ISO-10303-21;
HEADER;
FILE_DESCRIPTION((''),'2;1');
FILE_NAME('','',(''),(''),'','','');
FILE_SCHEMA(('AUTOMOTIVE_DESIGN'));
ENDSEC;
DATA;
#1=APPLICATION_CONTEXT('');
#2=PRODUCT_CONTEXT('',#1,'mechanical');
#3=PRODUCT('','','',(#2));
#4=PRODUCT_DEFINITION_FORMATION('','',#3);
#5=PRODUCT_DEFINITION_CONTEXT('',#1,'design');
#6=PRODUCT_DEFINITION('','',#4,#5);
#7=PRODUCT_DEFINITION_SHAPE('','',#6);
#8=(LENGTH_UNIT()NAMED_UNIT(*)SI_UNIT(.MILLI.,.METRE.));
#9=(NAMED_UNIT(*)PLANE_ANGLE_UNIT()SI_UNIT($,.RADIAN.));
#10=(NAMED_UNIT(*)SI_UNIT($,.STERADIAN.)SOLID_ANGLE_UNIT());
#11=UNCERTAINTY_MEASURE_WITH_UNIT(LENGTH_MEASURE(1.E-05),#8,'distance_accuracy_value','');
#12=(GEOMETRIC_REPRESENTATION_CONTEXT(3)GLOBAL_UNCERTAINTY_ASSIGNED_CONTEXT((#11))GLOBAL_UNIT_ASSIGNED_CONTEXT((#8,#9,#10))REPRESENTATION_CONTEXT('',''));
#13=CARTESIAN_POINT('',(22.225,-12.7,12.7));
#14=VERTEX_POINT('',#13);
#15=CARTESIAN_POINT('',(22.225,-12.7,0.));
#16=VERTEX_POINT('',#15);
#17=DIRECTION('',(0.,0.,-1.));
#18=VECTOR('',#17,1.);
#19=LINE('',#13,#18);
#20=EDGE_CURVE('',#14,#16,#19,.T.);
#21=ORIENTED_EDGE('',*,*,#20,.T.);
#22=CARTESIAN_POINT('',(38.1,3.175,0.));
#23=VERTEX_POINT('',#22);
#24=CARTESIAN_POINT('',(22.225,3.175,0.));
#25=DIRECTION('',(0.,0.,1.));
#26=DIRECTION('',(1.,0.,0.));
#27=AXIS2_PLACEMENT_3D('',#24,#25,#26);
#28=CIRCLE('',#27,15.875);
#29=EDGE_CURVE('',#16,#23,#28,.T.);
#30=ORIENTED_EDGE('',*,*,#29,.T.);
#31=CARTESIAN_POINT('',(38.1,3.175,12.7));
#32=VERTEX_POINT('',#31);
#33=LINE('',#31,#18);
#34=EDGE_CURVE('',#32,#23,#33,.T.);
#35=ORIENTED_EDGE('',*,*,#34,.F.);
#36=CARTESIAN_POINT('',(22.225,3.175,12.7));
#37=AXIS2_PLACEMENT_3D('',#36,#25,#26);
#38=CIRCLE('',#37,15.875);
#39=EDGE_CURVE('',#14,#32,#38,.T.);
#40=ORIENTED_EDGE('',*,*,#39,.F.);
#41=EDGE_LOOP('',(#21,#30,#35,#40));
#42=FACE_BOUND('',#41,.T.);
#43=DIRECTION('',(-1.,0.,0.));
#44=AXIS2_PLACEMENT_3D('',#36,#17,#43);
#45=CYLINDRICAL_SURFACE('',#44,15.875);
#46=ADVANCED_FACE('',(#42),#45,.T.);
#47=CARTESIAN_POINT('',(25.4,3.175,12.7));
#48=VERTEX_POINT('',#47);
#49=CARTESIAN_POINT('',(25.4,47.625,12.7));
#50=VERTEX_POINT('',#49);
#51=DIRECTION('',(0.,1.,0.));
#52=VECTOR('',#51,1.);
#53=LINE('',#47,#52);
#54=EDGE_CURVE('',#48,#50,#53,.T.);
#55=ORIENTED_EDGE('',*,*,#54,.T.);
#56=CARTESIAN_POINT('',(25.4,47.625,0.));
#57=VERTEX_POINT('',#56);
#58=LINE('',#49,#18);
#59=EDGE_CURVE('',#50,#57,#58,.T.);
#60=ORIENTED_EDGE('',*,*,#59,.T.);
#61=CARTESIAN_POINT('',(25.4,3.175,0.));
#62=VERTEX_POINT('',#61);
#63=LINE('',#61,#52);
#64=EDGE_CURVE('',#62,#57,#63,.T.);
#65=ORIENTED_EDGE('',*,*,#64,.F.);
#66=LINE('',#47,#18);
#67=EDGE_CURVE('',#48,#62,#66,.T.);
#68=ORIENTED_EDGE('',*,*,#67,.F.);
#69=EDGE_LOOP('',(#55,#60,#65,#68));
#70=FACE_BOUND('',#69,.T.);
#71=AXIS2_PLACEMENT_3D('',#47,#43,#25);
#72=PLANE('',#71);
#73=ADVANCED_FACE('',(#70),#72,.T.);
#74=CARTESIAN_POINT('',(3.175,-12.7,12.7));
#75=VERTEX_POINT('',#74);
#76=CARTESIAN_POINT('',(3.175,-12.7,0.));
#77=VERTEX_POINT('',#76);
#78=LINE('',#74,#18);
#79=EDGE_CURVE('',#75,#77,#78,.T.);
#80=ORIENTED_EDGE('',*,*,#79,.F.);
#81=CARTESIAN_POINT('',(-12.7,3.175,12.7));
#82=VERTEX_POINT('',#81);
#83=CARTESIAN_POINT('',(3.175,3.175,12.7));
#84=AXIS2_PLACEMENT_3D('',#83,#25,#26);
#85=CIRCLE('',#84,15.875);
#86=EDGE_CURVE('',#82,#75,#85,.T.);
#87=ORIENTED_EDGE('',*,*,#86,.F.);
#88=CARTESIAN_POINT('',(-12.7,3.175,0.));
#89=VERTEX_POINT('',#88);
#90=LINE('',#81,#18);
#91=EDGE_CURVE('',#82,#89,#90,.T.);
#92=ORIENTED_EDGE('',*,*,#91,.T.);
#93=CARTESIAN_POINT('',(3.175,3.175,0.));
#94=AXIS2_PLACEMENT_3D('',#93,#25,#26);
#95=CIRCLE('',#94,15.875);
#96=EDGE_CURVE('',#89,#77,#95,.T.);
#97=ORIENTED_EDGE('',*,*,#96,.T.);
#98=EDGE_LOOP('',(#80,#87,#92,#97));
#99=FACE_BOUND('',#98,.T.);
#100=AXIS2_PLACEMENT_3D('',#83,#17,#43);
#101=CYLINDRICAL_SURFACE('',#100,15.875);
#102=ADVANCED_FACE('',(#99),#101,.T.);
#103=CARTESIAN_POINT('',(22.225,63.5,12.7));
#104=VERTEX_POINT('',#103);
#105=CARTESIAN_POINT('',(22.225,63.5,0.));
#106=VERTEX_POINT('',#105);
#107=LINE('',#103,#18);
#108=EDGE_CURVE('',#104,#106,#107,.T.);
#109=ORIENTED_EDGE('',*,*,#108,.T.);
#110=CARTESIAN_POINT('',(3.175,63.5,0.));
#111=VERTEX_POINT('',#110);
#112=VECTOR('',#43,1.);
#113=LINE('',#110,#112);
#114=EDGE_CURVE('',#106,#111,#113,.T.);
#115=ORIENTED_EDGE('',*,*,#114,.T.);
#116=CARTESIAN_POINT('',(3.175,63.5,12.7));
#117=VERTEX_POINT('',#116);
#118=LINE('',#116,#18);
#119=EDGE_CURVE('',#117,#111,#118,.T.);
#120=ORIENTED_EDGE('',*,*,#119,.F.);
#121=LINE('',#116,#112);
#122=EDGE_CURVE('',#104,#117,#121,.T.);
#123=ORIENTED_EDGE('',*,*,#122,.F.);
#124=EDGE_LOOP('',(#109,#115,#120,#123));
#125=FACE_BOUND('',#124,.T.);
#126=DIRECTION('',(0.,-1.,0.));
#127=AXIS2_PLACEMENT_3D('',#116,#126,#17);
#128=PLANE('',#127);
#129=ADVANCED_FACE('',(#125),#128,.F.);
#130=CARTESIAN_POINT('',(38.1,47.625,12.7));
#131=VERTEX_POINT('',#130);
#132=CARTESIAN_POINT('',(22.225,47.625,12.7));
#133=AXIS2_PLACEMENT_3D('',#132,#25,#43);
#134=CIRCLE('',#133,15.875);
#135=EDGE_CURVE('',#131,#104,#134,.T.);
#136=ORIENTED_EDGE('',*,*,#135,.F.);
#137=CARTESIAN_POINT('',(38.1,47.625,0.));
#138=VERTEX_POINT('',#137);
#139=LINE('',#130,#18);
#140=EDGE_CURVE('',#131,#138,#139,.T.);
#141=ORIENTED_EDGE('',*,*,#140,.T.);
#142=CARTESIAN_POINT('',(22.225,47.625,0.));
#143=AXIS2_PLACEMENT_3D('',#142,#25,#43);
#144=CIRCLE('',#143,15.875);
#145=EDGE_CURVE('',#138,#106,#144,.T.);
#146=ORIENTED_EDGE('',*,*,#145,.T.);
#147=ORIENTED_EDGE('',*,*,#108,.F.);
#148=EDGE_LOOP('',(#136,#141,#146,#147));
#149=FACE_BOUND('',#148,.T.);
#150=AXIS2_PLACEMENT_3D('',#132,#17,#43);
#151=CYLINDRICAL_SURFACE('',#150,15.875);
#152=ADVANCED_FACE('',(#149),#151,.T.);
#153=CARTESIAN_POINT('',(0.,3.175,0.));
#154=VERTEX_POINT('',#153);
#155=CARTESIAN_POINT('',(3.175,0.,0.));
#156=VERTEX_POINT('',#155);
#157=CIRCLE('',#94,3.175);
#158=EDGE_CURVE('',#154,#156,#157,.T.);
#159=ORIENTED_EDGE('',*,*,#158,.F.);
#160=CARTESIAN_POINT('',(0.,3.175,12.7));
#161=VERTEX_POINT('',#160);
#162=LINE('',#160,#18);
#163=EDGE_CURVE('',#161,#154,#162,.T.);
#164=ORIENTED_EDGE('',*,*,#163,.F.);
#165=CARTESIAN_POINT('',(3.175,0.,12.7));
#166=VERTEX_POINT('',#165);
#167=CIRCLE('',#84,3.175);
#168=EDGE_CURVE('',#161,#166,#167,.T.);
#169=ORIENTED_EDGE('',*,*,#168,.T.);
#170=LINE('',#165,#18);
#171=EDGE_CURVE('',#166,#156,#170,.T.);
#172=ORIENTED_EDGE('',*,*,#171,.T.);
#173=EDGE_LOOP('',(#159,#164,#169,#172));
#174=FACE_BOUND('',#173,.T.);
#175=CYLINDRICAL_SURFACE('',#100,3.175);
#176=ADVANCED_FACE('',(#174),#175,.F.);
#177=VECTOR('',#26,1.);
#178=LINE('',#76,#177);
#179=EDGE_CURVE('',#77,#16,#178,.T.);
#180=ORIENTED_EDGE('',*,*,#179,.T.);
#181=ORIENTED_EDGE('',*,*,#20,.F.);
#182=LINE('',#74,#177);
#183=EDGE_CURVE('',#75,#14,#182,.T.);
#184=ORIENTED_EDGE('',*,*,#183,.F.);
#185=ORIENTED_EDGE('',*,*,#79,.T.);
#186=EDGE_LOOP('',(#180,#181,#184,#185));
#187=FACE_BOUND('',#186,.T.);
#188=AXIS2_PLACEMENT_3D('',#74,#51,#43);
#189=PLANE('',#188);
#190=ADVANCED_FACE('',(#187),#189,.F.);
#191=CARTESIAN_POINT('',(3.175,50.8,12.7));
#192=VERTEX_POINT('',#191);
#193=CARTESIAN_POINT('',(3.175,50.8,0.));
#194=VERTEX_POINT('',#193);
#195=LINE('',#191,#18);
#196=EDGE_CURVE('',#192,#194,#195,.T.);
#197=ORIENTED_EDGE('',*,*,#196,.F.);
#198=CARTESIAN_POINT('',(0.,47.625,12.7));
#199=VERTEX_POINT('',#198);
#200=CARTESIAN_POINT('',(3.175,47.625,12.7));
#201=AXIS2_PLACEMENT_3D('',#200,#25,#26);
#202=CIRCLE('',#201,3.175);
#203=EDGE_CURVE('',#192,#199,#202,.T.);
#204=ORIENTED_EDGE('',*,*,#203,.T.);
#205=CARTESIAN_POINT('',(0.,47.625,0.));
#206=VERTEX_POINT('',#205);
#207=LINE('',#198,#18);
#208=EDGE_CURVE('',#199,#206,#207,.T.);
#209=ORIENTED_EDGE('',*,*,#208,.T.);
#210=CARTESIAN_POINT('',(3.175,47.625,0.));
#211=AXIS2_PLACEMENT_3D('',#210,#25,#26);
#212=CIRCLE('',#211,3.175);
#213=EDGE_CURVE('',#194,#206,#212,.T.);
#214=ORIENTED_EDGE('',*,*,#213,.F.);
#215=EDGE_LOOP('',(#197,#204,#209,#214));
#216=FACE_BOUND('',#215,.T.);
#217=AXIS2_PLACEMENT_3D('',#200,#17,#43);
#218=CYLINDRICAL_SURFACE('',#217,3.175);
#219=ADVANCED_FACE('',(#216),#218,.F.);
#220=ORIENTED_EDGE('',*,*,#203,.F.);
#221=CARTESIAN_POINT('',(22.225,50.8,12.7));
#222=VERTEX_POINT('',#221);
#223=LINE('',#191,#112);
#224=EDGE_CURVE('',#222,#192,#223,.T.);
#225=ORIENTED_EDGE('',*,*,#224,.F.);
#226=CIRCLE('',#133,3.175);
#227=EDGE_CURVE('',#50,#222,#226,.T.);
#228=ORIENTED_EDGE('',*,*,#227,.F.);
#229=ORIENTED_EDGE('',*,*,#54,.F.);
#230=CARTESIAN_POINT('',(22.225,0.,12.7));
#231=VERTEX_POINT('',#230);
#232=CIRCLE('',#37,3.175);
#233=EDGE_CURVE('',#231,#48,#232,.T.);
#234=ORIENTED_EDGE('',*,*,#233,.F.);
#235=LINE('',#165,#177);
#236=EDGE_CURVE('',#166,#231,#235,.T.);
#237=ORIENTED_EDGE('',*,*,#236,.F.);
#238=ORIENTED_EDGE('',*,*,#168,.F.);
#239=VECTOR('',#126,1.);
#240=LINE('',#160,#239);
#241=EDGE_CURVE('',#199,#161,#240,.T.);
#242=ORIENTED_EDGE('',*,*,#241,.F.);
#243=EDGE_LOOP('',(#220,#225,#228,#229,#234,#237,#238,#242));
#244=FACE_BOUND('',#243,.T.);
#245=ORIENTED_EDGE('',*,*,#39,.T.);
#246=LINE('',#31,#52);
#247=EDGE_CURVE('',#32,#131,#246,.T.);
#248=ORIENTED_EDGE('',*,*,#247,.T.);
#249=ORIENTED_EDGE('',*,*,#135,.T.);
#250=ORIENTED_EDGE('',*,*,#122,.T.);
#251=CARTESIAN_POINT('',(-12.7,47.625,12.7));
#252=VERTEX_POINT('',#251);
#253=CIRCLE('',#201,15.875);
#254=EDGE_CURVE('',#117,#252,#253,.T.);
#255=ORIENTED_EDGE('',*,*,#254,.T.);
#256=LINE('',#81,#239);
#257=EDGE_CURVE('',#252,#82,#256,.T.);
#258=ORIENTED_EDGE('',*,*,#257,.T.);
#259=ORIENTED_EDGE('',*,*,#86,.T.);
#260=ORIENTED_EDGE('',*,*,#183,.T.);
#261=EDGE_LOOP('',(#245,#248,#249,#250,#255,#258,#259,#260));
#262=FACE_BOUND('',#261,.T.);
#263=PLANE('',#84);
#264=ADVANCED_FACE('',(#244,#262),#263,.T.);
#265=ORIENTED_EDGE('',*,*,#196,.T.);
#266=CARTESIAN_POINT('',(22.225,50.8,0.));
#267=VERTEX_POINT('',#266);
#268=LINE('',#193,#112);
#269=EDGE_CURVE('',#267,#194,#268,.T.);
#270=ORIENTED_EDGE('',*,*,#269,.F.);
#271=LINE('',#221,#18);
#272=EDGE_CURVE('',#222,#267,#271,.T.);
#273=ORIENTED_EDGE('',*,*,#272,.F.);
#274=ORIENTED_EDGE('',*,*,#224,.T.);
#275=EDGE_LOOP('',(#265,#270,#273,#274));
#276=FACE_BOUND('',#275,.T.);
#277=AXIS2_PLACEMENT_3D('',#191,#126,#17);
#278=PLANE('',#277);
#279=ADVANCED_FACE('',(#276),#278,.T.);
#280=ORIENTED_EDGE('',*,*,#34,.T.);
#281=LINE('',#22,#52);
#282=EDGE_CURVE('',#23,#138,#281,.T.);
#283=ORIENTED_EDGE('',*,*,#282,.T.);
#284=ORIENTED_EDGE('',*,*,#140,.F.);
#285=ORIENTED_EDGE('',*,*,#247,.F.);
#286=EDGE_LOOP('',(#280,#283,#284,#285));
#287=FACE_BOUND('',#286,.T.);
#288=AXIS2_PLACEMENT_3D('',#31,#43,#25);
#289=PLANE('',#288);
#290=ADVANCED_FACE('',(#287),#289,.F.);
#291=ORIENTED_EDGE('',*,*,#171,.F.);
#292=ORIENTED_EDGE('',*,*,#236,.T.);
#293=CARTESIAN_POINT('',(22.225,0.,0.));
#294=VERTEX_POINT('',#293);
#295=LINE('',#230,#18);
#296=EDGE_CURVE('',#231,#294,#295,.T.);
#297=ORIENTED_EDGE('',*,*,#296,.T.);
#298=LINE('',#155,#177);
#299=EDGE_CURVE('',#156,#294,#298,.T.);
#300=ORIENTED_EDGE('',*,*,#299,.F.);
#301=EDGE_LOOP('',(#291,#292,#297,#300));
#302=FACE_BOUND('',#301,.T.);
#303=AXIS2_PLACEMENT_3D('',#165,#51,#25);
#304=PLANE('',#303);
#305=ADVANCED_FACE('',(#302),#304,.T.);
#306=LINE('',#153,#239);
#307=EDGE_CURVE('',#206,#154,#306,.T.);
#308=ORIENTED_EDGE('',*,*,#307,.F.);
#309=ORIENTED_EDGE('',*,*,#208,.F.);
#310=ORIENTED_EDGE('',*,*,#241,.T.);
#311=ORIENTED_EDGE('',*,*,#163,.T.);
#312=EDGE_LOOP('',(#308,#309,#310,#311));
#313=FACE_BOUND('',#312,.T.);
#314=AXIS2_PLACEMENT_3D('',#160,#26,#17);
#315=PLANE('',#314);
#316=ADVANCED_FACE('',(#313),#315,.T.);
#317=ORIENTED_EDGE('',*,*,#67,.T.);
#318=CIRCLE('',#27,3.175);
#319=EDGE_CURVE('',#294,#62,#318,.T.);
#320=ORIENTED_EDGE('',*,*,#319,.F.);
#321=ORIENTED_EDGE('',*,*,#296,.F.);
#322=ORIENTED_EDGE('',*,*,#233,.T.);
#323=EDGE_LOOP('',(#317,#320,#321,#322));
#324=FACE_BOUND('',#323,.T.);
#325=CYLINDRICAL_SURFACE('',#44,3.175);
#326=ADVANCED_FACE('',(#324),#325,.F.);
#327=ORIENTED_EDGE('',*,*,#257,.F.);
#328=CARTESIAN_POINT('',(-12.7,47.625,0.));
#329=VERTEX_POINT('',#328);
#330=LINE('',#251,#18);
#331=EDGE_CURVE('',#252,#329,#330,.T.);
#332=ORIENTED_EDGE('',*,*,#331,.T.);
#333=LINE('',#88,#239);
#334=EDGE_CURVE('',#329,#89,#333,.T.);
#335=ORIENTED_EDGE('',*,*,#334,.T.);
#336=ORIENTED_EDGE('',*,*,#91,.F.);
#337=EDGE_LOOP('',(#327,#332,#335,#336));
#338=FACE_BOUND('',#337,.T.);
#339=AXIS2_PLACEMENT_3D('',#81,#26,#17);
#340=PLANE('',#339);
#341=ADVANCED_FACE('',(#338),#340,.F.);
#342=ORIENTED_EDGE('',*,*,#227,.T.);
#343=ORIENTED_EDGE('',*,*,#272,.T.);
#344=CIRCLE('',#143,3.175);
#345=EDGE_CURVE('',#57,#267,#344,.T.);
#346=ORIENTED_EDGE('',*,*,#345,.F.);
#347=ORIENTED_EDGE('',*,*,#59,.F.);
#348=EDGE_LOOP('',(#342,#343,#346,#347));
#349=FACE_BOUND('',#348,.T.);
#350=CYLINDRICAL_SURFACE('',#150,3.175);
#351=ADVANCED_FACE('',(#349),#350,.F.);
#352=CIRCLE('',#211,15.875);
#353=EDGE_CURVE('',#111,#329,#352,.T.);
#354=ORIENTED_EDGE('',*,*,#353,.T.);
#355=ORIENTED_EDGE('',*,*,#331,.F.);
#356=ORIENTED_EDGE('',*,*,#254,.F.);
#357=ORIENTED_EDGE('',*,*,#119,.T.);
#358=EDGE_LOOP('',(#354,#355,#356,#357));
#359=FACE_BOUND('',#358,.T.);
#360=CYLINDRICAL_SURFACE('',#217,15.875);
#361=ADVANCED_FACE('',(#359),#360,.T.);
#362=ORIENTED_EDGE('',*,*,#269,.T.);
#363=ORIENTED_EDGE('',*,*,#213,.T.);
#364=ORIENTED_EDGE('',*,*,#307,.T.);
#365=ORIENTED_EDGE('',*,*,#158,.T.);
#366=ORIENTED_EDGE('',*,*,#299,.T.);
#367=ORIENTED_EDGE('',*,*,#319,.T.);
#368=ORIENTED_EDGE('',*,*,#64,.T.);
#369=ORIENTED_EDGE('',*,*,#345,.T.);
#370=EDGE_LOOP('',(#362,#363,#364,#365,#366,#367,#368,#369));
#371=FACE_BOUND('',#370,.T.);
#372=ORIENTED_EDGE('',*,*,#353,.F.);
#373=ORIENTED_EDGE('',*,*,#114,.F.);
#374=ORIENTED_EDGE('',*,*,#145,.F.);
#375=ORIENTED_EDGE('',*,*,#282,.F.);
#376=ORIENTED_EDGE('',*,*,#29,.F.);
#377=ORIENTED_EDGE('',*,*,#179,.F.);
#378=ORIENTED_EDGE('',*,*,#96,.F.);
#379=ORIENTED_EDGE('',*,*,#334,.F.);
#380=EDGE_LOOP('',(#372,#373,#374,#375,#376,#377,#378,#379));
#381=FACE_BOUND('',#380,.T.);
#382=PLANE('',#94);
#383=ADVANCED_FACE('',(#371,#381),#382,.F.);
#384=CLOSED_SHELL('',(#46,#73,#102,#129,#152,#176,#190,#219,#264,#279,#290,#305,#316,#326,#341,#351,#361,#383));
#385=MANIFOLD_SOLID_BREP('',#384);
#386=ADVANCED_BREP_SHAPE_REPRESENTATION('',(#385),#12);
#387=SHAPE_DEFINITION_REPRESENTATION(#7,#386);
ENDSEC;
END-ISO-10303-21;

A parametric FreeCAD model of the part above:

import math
import FreeCAD as App
import Part
import Sketcher

V = App.Vector
Q = App.Units.Quantity

doc = App.newDocument("Part")
body = doc.addObject("PartDesign::Body", "Body")

# Sketch on XY plane
sketch1 = body.newObject("Sketcher::SketchObject", "Sketch")
sketch1.AttachmentSupport = (doc.getObject("XY_Plane"), [""])
sketch1.MapMode = "FlatFace"
sketch1.addGeometry(Part.LineSegment(V(-12.7, 47.6, 0), V(-12.7, 3.2, 0)), False)
sketch1.addGeometry(Part.ArcOfCircle(Part.Circle(V(3.2, 3.2, 0), V(0, 0, 1), 15.9), math.radians(-180), math.radians(-90)), False)
sketch1.addGeometry(Part.LineSegment(V(3.2, -12.7, 0), V(22.2, -12.7, 0)), False)
sketch1.addGeometry(Part.ArcOfCircle(Part.Circle(V(22.2, 3.2, 0), V(0, 0, 1), 15.9), math.radians(-90), math.radians(0)), False)
sketch1.addGeometry(Part.LineSegment(V(38.1, 3.2, 0), V(38.1, 47.6, 0)), False)
sketch1.addGeometry(Part.ArcOfCircle(Part.Circle(V(22.2, 47.6, 0), V(0, 0, 1), 15.9), math.radians(0), math.radians(90)), False)
sketch1.addGeometry(Part.LineSegment(V(22.2, 63.5, 0), V(3.2, 63.5, 0)), False)
sketch1.addGeometry(Part.ArcOfCircle(Part.Circle(V(3.2, 47.6, 0), V(0, 0, 1), 15.9), math.radians(90), math.radians(180)), False)
sketch1.addGeometry(Part.ArcOfCircle(Part.Circle(V(3.2, 3.2, 0), V(0, 0, 1), 3.2), math.radians(-180), math.radians(-90)), False)
sketch1.addGeometry(Part.LineSegment(V(0, 3.2, 0), V(0, 47.6, 0)), False)
sketch1.addGeometry(Part.ArcOfCircle(Part.Circle(V(3.2, 47.6, 0), V(0, 0, 1), 3.2), math.radians(90), math.radians(180)), False)
sketch1.addGeometry(Part.LineSegment(V(3.2, 50.8, 0), V(22.2, 50.8, 0)), False)
sketch1.addGeometry(Part.ArcOfCircle(Part.Circle(V(22.2, 47.6, 0), V(0, 0, 1), 3.2), math.radians(0), math.radians(90)), False)
sketch1.addGeometry(Part.LineSegment(V(25.4, 47.6, 0), V(25.4, 3.2, 0)), False)
sketch1.addGeometry(Part.ArcOfCircle(Part.Circle(V(22.2, 3.2, 0), V(0, 0, 1), 3.2), math.radians(-90), math.radians(0)), False)
sketch1.addGeometry(Part.LineSegment(V(22.2, 0, 0), V(3.2, 0, 0)), False)
sketch1.addConstraint(Sketcher.Constraint("Tangent", 0, 2, 1, 1))
sketch1.addConstraint(Sketcher.Constraint("Tangent", 1, 2, 2, 1))
sketch1.addConstraint(Sketcher.Constraint("Tangent", 2, 2, 3, 1))
sketch1.addConstraint(Sketcher.Constraint("Tangent", 3, 2, 4, 1))
sketch1.addConstraint(Sketcher.Constraint("Tangent", 4, 2, 5, 1))
sketch1.addConstraint(Sketcher.Constraint("Tangent", 5, 2, 6, 1))
sketch1.addConstraint(Sketcher.Constraint("Tangent", 6, 2, 7, 1))
sketch1.addConstraint(Sketcher.Constraint("Tangent", 7, 2, 0, 1))
sketch1.addConstraint(Sketcher.Constraint("Tangent", 8, 1, 9, 1))
sketch1.addConstraint(Sketcher.Constraint("Tangent", 9, 2, 10, 2))
sketch1.addConstraint(Sketcher.Constraint("Tangent", 10, 1, 11, 1))
sketch1.addConstraint(Sketcher.Constraint("Tangent", 11, 2, 12, 2))
sketch1.addConstraint(Sketcher.Constraint("Tangent", 12, 1, 13, 1))
sketch1.addConstraint(Sketcher.Constraint("Tangent", 13, 2, 14, 2))
sketch1.addConstraint(Sketcher.Constraint("Tangent", 14, 1, 15, 1))
sketch1.addConstraint(Sketcher.Constraint("Tangent", 15, 2, 8, 2))
sketch1.addConstraint(Sketcher.Constraint("Vertical", 0))
sketch1.addConstraint(Sketcher.Constraint("Horizontal", 2))
sketch1.addConstraint(Sketcher.Constraint("Vertical", 4))
sketch1.addConstraint(Sketcher.Constraint("Horizontal", 6))
sketch1.addConstraint(Sketcher.Constraint("Vertical", 9))
sketch1.addConstraint(Sketcher.Constraint("Horizontal", 11))
sketch1.addConstraint(Sketcher.Constraint("Vertical", 13))
sketch1.addConstraint(Sketcher.Constraint("Horizontal", 15))
sketch1.addConstraint(Sketcher.Constraint("Coincident", 8, 3, 1, 3))
sketch1.addConstraint(Sketcher.Constraint("Coincident", 10, 3, 7, 3))
sketch1.addConstraint(Sketcher.Constraint("Coincident", 12, 3, 5, 3))
sketch1.addConstraint(Sketcher.Constraint("Equal", 1, 3))
sketch1.addConstraint(Sketcher.Constraint("Equal", 3, 5))
sketch1.addConstraint(Sketcher.Constraint("Equal", 5, 7))
sketch1.addConstraint(Sketcher.Constraint("Equal", 12, 14))
sketch1.addConstraint(Sketcher.Constraint("PointOnObject", 8, 1, -2))
sketch1.addConstraint(Sketcher.Constraint("PointOnObject", 14, 1, -1))
sketch1.addConstraint(Sketcher.Constraint("DistanceY", -1, 1, 10, 1, Q("2 in")))
sketch1.addConstraint(Sketcher.Constraint("DistanceX", -1, 1, 12, 1, Q("1 in")))
sketch1.addConstraint(Sketcher.Constraint("Radius", 1, Q("0.625 in")))
sketch1.addConstraint(Sketcher.Constraint("Radius", 8, Q("0.125 in")))
pad1 = body.newObject("PartDesign::Pad", "Pad")
pad1.Profile = sketch1
pad1.Length = Q("0.5 in")

doc.recompute()
